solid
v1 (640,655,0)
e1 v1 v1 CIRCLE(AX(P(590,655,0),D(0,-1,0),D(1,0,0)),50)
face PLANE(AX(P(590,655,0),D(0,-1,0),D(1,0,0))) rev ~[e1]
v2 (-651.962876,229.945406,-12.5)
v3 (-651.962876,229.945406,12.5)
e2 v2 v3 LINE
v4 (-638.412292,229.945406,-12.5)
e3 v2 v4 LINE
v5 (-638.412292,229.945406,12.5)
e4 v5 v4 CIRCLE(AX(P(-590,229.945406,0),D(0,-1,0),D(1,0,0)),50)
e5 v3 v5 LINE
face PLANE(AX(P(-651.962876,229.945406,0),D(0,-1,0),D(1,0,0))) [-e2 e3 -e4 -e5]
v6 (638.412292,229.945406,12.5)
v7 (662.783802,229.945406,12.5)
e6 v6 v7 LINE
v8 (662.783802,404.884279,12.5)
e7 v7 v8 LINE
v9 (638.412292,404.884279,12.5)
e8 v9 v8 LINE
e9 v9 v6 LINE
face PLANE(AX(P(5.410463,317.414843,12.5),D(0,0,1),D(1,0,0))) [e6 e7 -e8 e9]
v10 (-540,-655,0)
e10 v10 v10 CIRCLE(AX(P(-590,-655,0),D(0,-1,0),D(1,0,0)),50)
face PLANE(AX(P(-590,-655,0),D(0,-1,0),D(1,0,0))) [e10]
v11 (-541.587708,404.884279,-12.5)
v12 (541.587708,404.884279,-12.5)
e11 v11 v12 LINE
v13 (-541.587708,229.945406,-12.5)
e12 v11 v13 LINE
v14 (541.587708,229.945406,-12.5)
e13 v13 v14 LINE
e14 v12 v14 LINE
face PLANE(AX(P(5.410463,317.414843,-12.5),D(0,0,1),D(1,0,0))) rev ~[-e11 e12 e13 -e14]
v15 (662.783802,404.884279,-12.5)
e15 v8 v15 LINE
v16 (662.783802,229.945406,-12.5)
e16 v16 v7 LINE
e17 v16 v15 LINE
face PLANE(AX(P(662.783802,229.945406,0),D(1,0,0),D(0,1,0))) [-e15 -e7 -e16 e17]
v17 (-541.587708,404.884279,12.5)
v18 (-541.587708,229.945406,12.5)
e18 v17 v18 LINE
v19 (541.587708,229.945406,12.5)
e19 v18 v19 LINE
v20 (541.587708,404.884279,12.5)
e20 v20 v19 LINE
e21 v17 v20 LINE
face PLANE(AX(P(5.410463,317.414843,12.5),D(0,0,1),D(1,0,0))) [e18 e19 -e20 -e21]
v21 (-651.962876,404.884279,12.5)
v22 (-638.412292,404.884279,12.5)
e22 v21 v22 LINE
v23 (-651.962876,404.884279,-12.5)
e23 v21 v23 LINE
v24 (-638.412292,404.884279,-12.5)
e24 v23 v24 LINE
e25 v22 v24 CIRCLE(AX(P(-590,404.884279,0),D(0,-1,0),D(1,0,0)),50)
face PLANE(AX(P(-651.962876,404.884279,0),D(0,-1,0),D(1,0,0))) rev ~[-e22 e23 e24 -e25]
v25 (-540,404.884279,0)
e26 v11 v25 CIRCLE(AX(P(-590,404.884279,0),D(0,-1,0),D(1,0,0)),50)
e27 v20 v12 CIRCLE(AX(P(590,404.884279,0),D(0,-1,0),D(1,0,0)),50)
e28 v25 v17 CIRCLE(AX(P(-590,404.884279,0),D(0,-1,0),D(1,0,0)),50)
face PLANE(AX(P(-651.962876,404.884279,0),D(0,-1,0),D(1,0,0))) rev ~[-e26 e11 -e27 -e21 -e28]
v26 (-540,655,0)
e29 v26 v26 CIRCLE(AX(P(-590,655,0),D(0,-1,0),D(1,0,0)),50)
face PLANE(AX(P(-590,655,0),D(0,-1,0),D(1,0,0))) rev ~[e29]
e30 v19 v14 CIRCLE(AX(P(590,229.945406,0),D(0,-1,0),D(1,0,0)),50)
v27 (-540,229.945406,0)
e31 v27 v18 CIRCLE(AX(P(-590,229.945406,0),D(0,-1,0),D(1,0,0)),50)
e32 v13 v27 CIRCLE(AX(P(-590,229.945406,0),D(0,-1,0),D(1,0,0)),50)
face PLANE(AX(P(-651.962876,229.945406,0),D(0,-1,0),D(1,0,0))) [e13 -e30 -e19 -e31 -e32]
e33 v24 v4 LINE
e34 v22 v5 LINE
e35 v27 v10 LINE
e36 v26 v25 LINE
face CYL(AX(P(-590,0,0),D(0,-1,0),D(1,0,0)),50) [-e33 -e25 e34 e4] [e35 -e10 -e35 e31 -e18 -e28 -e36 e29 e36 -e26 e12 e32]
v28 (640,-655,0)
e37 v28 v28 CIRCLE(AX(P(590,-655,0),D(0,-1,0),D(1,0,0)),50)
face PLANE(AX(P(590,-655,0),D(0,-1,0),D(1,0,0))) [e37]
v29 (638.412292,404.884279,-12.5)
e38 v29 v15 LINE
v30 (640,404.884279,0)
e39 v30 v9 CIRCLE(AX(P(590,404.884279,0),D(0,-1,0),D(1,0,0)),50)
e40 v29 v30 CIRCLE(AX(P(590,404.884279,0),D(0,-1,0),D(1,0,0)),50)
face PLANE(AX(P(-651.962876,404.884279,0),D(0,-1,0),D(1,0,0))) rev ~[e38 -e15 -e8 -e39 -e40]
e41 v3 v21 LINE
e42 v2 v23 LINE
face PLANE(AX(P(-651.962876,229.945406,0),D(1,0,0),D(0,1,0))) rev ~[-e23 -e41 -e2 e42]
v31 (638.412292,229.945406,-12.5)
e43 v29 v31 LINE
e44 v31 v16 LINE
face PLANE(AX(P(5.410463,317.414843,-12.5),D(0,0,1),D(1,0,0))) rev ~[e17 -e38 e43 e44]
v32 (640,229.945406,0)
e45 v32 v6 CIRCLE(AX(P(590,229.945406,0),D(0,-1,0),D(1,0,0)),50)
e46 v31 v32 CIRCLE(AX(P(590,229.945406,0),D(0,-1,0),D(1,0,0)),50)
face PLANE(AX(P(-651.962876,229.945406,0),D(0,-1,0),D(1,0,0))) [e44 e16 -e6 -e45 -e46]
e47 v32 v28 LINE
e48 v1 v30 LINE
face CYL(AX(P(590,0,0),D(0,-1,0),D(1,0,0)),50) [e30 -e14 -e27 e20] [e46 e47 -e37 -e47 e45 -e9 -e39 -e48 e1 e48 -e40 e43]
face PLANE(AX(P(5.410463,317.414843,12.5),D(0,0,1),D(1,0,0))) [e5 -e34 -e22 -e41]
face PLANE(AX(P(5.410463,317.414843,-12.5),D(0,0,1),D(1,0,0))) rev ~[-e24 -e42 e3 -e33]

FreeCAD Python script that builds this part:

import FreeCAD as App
import Part
import Sketcher

doc = App.newDocument("Part")
params = doc.addObject("Spreadsheet::Sheet", "Params")
for row, (alias, value) in enumerate([
    ("sketch1_diameter", "100 mm"),
    ("pad1_length", "1310 mm"),
    ("sketch2_diameter", "100 mm"),
    ("pad2_length", "1310 mm"),
    ("pad3_length", "25 mm"),
], start=1):
    params.set(f"A{row}", alias)
    params.set(f"B{row}", "=" + value)
    params.setAlias(f"B{row}", alias)

body = doc.addObject("PartDesign::Body", "Body")

# Sketch on XZ plane
sketch1 = body.newObject("Sketcher::SketchObject", "Sketch")
sketch1.AttachmentSupport = (doc.getObject("XZ_Plane"), [""])
sketch1.MapMode = "FlatFace"
sketch1.addGeometry(Part.Circle(App.Vector(590, 0, 0), App.Vector(0, 0, 1), 50), False)
sketch1.addConstraint([
    Sketcher.Constraint("PointOnObject", 0, 3, -1),
    Sketcher.Constraint("Diameter", 0, 100.0),
    Sketcher.Constraint("DistanceX", -1, 1, 0, 3, 590.0),
])
sketch1.setExpression("Constraints[1]", "Params.sketch1_diameter")
pad1 = body.newObject("PartDesign::Pad", "Pad")
pad1.Profile = sketch1
pad1.setExpression("Length", "Params.pad1_length")
pad1.Midplane = True
body2 = doc.addObject("PartDesign::Body", "Body001")

# Sketch on XZ plane
sketch2 = body2.newObject("Sketcher::SketchObject", "Sketch001")
sketch2.AttachmentSupport = (doc.getObject("XZ_Plane001"), [""])
sketch2.MapMode = "FlatFace"
sketch2.addGeometry(Part.Circle(App.Vector(-590, 0, 0), App.Vector(0, 0, 1), 50), False)
sketch2.addConstraint([
    Sketcher.Constraint("PointOnObject", 0, 3, -1),
    Sketcher.Constraint("Diameter", 0, 100.0),
    Sketcher.Constraint("DistanceX", 0, 3, -1, 1, 590.0),
])
sketch2.setExpression("Constraints[1]", "Params.sketch2_diameter")
pad2 = body2.newObject("PartDesign::Pad", "Pad001")
pad2.Profile = sketch2
pad2.setExpression("Length", "Params.pad2_length")
pad2.Midplane = True
body.AllowCompound = True
doc.recompute()

boolean = body.newObject("PartDesign::Boolean", "Boolean")
boolean.Type = "Fuse"
boolean.addObjects([body2])

# Sketch on XY plane
sketch3 = body.newObject("Sketcher::SketchObject", "Sketch002")
sketch3.AttachmentSupport = (doc.getObject("XY_Plane"), [""])
sketch3.MapMode = "FlatFace"
sketch3.addGeometry([
    Part.LineSegment(App.Vector(-652, 405, 0), App.Vector(-652, 230, 0)),
    Part.LineSegment(App.Vector(-652, 230, 0), App.Vector(663, 230, 0)),
    Part.LineSegment(App.Vector(663, 230, 0), App.Vector(663, 405, 0)),
    Part.LineSegment(App.Vector(663, 405, 0), App.Vector(-652, 405, 0)),
], False)
sketch3.addConstraint([
    Sketcher.Constraint("Coincident", 0, 2, 1, 1),
    Sketcher.Constraint("Coincident", 1, 2, 2, 1),
    Sketcher.Constraint("Coincident", 2, 2, 3, 1),
    Sketcher.Constraint("Coincident", 3, 2, 0, 1),
    Sketcher.Constraint("Vertical", 0),
    Sketcher.Constraint("Horizontal", 1),
    Sketcher.Constraint("Vertical", 2),
    Sketcher.Constraint("Horizontal", 3),
    Sketcher.Constraint("DistanceX", -1, 1, 1, 2, 662.783802),
    Sketcher.Constraint("DistanceX", 1, 1, 1, 2, 1314.746678),
    Sketcher.Constraint("DistanceY", 0, 2, 0, 1, 174.938872),
    Sketcher.Constraint("DistanceY", -1, 1, 2, 2, 404.884279),
])
pad3 = body.newObject("PartDesign::Pad", "Pad002")
pad3.Profile = sketch3
pad3.setExpression("Length", "Params.pad3_length")
pad3.Midplane = True

doc.recompute()
